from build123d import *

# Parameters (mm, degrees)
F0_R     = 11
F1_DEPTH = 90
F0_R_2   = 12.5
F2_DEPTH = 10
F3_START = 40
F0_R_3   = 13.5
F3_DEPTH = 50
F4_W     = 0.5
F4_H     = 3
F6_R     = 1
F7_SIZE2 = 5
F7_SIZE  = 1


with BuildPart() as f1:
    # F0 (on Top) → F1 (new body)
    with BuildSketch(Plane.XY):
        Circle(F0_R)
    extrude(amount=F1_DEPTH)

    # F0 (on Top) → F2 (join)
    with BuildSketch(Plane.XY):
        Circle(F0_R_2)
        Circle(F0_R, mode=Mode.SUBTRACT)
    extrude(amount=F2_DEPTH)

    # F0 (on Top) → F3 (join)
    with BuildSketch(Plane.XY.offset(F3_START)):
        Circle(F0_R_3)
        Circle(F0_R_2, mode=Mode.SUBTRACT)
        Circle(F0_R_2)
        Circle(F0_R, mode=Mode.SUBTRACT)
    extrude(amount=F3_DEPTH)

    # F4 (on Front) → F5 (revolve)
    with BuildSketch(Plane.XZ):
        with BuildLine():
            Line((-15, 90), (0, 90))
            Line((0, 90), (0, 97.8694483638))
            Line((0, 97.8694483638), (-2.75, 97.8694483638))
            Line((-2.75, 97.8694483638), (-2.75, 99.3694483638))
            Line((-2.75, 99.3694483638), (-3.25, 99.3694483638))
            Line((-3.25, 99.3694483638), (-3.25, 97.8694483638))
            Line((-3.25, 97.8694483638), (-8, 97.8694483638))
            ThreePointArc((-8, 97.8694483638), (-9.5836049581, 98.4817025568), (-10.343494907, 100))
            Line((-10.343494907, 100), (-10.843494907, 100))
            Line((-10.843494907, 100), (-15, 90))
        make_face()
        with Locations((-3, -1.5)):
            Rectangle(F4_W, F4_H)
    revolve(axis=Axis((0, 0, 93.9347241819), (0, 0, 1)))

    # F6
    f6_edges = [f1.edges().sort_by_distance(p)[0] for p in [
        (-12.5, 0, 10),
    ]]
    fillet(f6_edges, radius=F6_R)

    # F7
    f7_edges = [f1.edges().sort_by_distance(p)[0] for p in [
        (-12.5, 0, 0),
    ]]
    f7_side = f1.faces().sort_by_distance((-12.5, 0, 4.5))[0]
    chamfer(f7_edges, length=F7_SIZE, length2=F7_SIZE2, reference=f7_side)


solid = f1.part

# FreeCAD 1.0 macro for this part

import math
import FreeCAD as App
import Part
import Sketcher
from FreeCAD import Vector


def edges_at(feature, points):
    """Names of the edges that pass closest to the given points."""
    edges = feature.Shape.Edges
    near = lambda p: min(range(len(edges)), key=lambda i: edges[i].distToShape(Part.Vertex(*p))[0])
    return sorted({f"Edge{near(p) + 1}" for p in points})

doc = App.newDocument("Part")
body = doc.addObject("PartDesign::Body", "Body")

sketch1 = body.newObject("Sketcher::SketchObject", "Sketch")
sketch1.AttachmentSupport = (doc.getObject("XY_Plane"), [""])
sketch1.MapMode = "FlatFace"
sketch1.addGeometry(Part.Circle(Vector(0, 0, 0), Vector(0, 0, 1), 11), False)
sketch1.addConstraint([
    Sketcher.Constraint("Coincident", 0, 3, -1, 1),
    Sketcher.Constraint("Diameter", 0, 22.0),
])
pad1 = body.newObject("PartDesign::Pad", "Pad")
pad1.Profile = sketch1
pad1.Length = 90

sketch2 = body.newObject("Sketcher::SketchObject", "Sketch001")
sketch2.AttachmentSupport = (doc.getObject("XY_Plane"), [""])
sketch2.MapMode = "FlatFace"
sketch2.addGeometry([
    Part.Circle(Vector(0, 0, 0), Vector(0, 0, 1), 12.5),
    Part.Circle(Vector(0, 0, 0), Vector(0, 0, 1), 11),
], False)
sketch2.addConstraint([
    Sketcher.Constraint("Coincident", 0, 3, -1, 1),
    Sketcher.Constraint("Coincident", 1, 3, -1, 1),
    Sketcher.Constraint("Diameter", 0, 25.0),
    Sketcher.Constraint("Diameter", 1, 22.0),
])
pad2 = body.newObject("PartDesign::Pad", "Pad001")
pad2.Profile = sketch2
pad2.Length = 10

sketch3 = body.newObject("Sketcher::SketchObject", "Sketch002")
sketch3.AttachmentSupport = (doc.getObject("XY_Plane"), [""])
sketch3.MapMode = "FlatFace"
sketch3.AttachmentOffset = App.Placement(Vector(0, 0, 40), App.Rotation())
sketch3.addGeometry([
    Part.Circle(Vector(0, 0, 0), Vector(0, 0, 1), 13.5),
    Part.Circle(Vector(0, 0, 0), Vector(0, 0, 1), 11),
], False)
sketch3.addConstraint([
    Sketcher.Constraint("Coincident", 0, 3, -1, 1),
    Sketcher.Constraint("Coincident", 1, 3, -1, 1),
    Sketcher.Constraint("Diameter", 0, 27.0),
    Sketcher.Constraint("Diameter", 1, 22.0),
])
pad3 = body.newObject("PartDesign::Pad", "Pad002")
pad3.Profile = sketch3
pad3.Length = 50

sketch4 = body.newObject("Sketcher::SketchObject", "Sketch003")
sketch4.AttachmentSupport = (doc.getObject("XZ_Plane"), [""])
sketch4.MapMode = "FlatFace"
sketch4.addGeometry([
    Part.LineSegment(Vector(-15, 90, 0), Vector(0, 90, 0)),
    Part.LineSegment(Vector(0, 90, 0), Vector(0, 97.869448, 0)),
    Part.LineSegment(Vector(0, 97.869448, 0), Vector(-2.75, 97.869448, 0)),
    Part.LineSegment(Vector(-2.75, 97.869448, 0), Vector(-2.75, 99.369448, 0)),
    Part.LineSegment(Vector(-2.75, 99.369448, 0), Vector(-3.25, 99.369448, 0)),
    Part.LineSegment(Vector(-3.25, 99.369448, 0), Vector(-3.25, 97.869448, 0)),
    Part.LineSegment(Vector(-3.25, 97.869448, 0), Vector(-8, 97.869448, 0)),
    Part.ArcOfCircle(Part.Circle(Vector(-8, 100.223585, 0), Vector(0, 0, 1), 2.354136), math.radians(-174.550101), math.radians(-90)),
    Part.LineSegment(Vector(-10.343495, 100, 0), Vector(-10.843495, 100, 0)),
    Part.LineSegment(Vector(-10.843495, 100, 0), Vector(-15, 90, 0)),
    Part.LineSegment(Vector(-3.25, 0, 0), Vector(-3.25, -3, 0)),
    Part.LineSegment(Vector(-3.25, -3, 0), Vector(-2.75, -3, 0)),
    Part.LineSegment(Vector(-2.75, -3, 0), Vector(-2.75, 0, 0)),
    Part.LineSegment(Vector(-2.75, 0, 0), Vector(-3.25, 0, 0)),
], False)
sketch4.addConstraint([
    Sketcher.Constraint("Coincident", 0, 2, 1, 1),
    Sketcher.Constraint("Coincident", 1, 2, 2, 1),
    Sketcher.Constraint("Coincident", 2, 2, 3, 1),
    Sketcher.Constraint("Coincident", 3, 2, 4, 1),
    Sketcher.Constraint("Coincident", 4, 2, 5, 1),
    Sketcher.Constraint("Coincident", 5, 2, 6, 1),
    Sketcher.Constraint("Tangent", 6, 2, 7, 2),
    Sketcher.Constraint("Coincident", 7, 1, 8, 1),
    Sketcher.Constraint("Coincident", 8, 2, 9, 1),
    Sketcher.Constraint("Coincident", 9, 2, 0, 1),
    Sketcher.Constraint("Coincident", 10, 2, 11, 1),
    Sketcher.Constraint("Coincident", 11, 2, 12, 1),
    Sketcher.Constraint("Coincident", 12, 2, 13, 1),
    Sketcher.Constraint("Coincident", 13, 2, 10, 1),
    Sketcher.Constraint("Horizontal", 0),
    Sketcher.Constraint("Vertical", 1),
    Sketcher.Constraint("Horizontal", 2),
    Sketcher.Constraint("Vertical", 3),
    Sketcher.Constraint("Horizontal", 4),
    Sketcher.Constraint("Vertical", 5),
    Sketcher.Constraint("Horizontal", 6),
    Sketcher.Constraint("Horizontal", 8),
    Sketcher.Constraint("Vertical", 10),
    Sketcher.Constraint("Horizontal", 11),
    Sketcher.Constraint("Vertical", 12),
    Sketcher.Constraint("Horizontal", 13),
    Sketcher.Constraint("PointOnObject", 0, 2, -2),
    Sketcher.Constraint("PointOnObject", 12, 2, -1),
    Sketcher.Constraint("Horizontal", 2, 2, 5, 2),
    Sketcher.Constraint("Vertical", 5, 2, 10, 2),
    Sketcher.Constraint("Vertical", 3, 2, 11, 2),
    Sketcher.Constraint("Equal", 4, 8),
    Sketcher.Constraint("DistanceX", 0, 1, 0, 2, 15.0),
    Sketcher.Constraint("DistanceY", 10, 2, 10, 1, 3.0),
    Sketcher.Constraint("DistanceX", 4, 2, 4, 1, 0.5),
    Sketcher.Constraint("DistanceY", 3, 1, 3, 2, 1.5),
    Sketcher.Constraint("DistanceX", 7, 3, -1, 1, 8.0),
    Sketcher.Constraint("DistanceY", -1, 1, 0, 2, 90.0),
    Sketcher.Constraint("DistanceY", -1, 1, 7, 1, 100.0),
    Sketcher.Constraint("DistanceX", 2, 2, 2, 1, 2.75),
    Sketcher.Constraint("Radius", 7, 2.354136),
    Sketcher.Constraint("DistanceY", 1, 1, 1, 2, 7.869448),
])
revolution = body.newObject("PartDesign::Revolution", "Revolution")
revolution.Profile = sketch4
revolution.ReferenceAxis = (sketch4, ["V_Axis"])
revolution.Angle = 360
doc.recompute()

fillet = body.newObject("PartDesign::Fillet", "Fillet")
fillet.Base = (revolution, edges_at(revolution, [(-12.5, 0, 10)]))
fillet.Radius = 1
doc.recompute()

chamfer = body.newObject("PartDesign::Chamfer", "Chamfer")
chamfer.Base = (fillet, edges_at(fillet, [(-12.5, 0, 0)]))
chamfer.ChamferType = "Two distances"
chamfer.Size = 1
chamfer.Size2 = 5

doc.recompute()
